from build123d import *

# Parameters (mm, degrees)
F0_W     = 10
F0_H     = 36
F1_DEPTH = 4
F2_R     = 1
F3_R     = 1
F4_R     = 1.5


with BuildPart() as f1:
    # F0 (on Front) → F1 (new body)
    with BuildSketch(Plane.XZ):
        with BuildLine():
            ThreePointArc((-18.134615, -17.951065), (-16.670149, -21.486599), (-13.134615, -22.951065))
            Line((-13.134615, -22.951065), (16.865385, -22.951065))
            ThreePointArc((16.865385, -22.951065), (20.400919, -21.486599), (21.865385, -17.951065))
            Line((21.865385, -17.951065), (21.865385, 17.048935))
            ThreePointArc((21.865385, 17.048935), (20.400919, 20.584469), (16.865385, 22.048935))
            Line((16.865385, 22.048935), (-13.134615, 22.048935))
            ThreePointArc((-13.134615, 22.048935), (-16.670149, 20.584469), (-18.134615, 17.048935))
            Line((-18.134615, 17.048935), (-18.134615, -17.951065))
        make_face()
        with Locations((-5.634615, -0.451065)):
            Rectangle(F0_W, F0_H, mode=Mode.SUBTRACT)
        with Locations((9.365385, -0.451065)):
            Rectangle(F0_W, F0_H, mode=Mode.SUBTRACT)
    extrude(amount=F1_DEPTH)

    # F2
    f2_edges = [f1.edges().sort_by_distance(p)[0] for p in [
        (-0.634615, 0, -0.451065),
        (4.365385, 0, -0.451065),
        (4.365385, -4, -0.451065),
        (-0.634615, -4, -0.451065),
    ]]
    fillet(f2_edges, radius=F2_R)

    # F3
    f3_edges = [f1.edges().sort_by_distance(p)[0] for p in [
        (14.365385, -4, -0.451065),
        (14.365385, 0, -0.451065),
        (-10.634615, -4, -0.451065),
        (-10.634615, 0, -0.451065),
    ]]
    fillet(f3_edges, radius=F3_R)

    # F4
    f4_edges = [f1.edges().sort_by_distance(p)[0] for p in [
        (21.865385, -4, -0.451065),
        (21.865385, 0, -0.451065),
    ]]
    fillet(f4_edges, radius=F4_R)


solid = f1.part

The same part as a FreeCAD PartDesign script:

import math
import FreeCAD as App
import Part
import Sketcher
Q = App.Units.Quantity


def edges_at(feature, points):
    """Names of the edges that pass closest to the given points."""
    edges = feature.Shape.Edges
    near = lambda p: min(range(len(edges)), key=lambda i: edges[i].distToShape(Part.Vertex(*p))[0])
    return sorted({f"Edge{near(p) + 1}" for p in points})


def add_polygon(sketch, points):
    """Adds a closed chain of lines whose ends are joined by coincident constraints."""
    first, n = sketch.GeometryCount, len(points)
    for a, b in zip(points, points[1:] + points[:1]):
        sketch.addGeometry(Part.LineSegment(App.Vector(*a, 0), App.Vector(*b, 0)), False)
    for i in range(n):
        sketch.addConstraint(Sketcher.Constraint("Coincident", first + i, 2, first + (i + 1) % n, 1))

doc = App.newDocument("Part")
params = doc.addObject("Spreadsheet::Sheet", "Params")
for row, (alias, value) in enumerate([
    ("sketch1_radius", "5 mm"),
    ("sketch1_width", "30 mm"),
    ("sketch1_width2", "10 mm"),
    ("sketch1_height", "35 mm"),
    ("sketch1_height2", "36 mm"),
    ("pad1_length", "4 mm"),
    ("fillet_radius", "1 mm"),
    ("fillet2_radius", "1 mm"),
    ("fillet3_radius", "1.5 mm"),
], start=1):
    params.set(f"A{row}", alias)
    params.set(f"B{row}", "=" + value)
    params.setAlias(f"B{row}", alias)

body = doc.addObject("PartDesign::Body", "Body")

sketch1 = doc.addObject("Sketcher::SketchObject", "Sketch")
body.addObject(sketch1)
sketch1.AttachmentSupport = (doc.XZ_Plane, [""])
sketch1.MapMode = "FlatFace"
sketch1.addGeometry(Part.ArcOfCircle(Part.Circle(App.Vector(-13.134615, -17.951065, 0), App.Vector(0, 0, 1), 5), math.radians(179.999996), math.radians(270.000004)), False)
sketch1.addGeometry(Part.LineSegment(App.Vector(-13.134615, -22.951065, 0), App.Vector(16.865385, -22.951065, 0)), False)
sketch1.addGeometry(Part.ArcOfCircle(Part.Circle(App.Vector(16.865385, -17.951065, 0), App.Vector(0, 0, 1), 5), math.radians(-90.000004), math.radians(0.000004)), False)
sketch1.addGeometry(Part.LineSegment(App.Vector(21.865385, -17.951065, 0), App.Vector(21.865385, 17.048935, 0)), False)
sketch1.addGeometry(Part.ArcOfCircle(Part.Circle(App.Vector(16.865385, 17.048935, 0), App.Vector(0, 0, 1), 5), math.radians(-0.000004), math.radians(90.000004)), False)
sketch1.addGeometry(Part.LineSegment(App.Vector(16.865385, 22.048935, 0), App.Vector(-13.134615, 22.048935, 0)), False)
sketch1.addGeometry(Part.ArcOfCircle(Part.Circle(App.Vector(-13.134615, 17.048935, 0), App.Vector(0, 0, 1), 5), math.radians(89.999996), math.radians(180.000004)), False)
sketch1.addGeometry(Part.LineSegment(App.Vector(-18.134615, 17.048935, 0), App.Vector(-18.134615, -17.951065, 0)), False)
add_polygon(sketch1, [(-0.634615, -18.451065), (-10.634615, -18.451065), (-10.634615, 17.548935), (-0.634615, 17.548935)])
add_polygon(sketch1, [(14.365385, -18.451065), (4.365385, -18.451065), (4.365385, 17.548935), (14.365385, 17.548935)])
sketch1.addConstraint([
    Sketcher.Constraint("Tangent", 0, 2, 1, 1),
    Sketcher.Constraint("Tangent", 1, 2, 2, 1),
    Sketcher.Constraint("Tangent", 2, 2, 3, 1),
    Sketcher.Constraint("Tangent", 3, 2, 4, 1),
    Sketcher.Constraint("Tangent", 4, 2, 5, 1),
    Sketcher.Constraint("Tangent", 5, 2, 6, 1),
    Sketcher.Constraint("Tangent", 6, 2, 7, 1),
    Sketcher.Constraint("Tangent", 7, 2, 0, 1),
    Sketcher.Constraint("Horizontal", 1),
    Sketcher.Constraint("Vertical", 3),
    Sketcher.Constraint("Horizontal", 5),
    Sketcher.Constraint("Vertical", 7),
    Sketcher.Constraint("Horizontal", 8),
    Sketcher.Constraint("Vertical", 9),
    Sketcher.Constraint("Horizontal", 10),
    Sketcher.Constraint("Vertical", 11),
    Sketcher.Constraint("Horizontal", 12),
    Sketcher.Constraint("Vertical", 13),
    Sketcher.Constraint("Horizontal", 14),
    Sketcher.Constraint("Vertical", 15),
    Sketcher.Constraint("Equal", 0, 2),
    Sketcher.Constraint("Equal", 2, 4),
    Sketcher.Constraint("Equal", 4, 6),
    Sketcher.Constraint("Horizontal", 11, 2, 12, 2),
    Sketcher.Constraint("Horizontal", 10, 2, 13, 2),
    Sketcher.Constraint("Equal", 10, 12),
    Sketcher.Constraint("Radius", 0, Q("5 mm")),
    Sketcher.Constraint("DistanceX", 1, 1, 1, 2, Q("30 mm")),
    Sketcher.Constraint("DistanceX", 8, 2, 8, 1, Q("10 mm")),
    Sketcher.Constraint("DistanceY", 3, 1, 3, 2, Q("35 mm")),
    Sketcher.Constraint("DistanceY", 9, 1, 9, 2, Q("36 mm")),
    Sketcher.Constraint("DistanceX", 11, 2, 12, 2, Q("5 mm")),
    Sketcher.Constraint("DistanceX", 0, 3, 8, 2, Q("2.5 mm")),
    Sketcher.Constraint("DistanceY", 8, 2, 0, 3, Q("0.5 mm")),
    Sketcher.Constraint("DistanceX", 0, 3, -1, 1, Q("13.134615 mm")),
    Sketcher.Constraint("DistanceY", 0, 3, -1, 1, Q("17.951065 mm")),
])
sketch1.setExpression("Constraints[34]", "Params.sketch1_radius")
sketch1.setExpression("Constraints[35]", "Params.sketch1_width")
sketch1.setExpression("Constraints[36]", "Params.sketch1_width2")
sketch1.setExpression("Constraints[37]", "Params.sketch1_height")
sketch1.setExpression("Constraints[38]", "Params.sketch1_height2")
pad1 = doc.addObject("PartDesign::Pad", "Pad")
body.addObject(pad1)
pad1.Profile = sketch1
pad1.setExpression("Length", "Params.pad1_length")
doc.recompute()

fillet = doc.addObject("PartDesign::Fillet", "Fillet")
body.addObject(fillet)
fillet.Base = (pad1, edges_at(pad1, [
    (-0.635, 0, -0.451),
    (4.365, 0, -0.451),
    (4.365, -4, -0.451),
    (-0.635, -4, -0.451),
]))
fillet.setExpression("Radius", "Params.fillet_radius")
doc.recompute()

fillet2 = doc.addObject("PartDesign::Fillet", "Fillet001")
body.addObject(fillet2)
fillet2.Base = (fillet, edges_at(fillet, [
    (14.365, -4, -0.451),
    (14.365, 0, -0.451),
    (-10.635, -4, -0.451),
    (-10.635, 0, -0.451),
]))
fillet2.setExpression("Radius", "Params.fillet2_radius")
doc.recompute()

fillet3 = doc.addObject("PartDesign::Fillet", "Fillet002")
body.addObject(fillet3)
fillet3.Base = (fillet2, edges_at(fillet2, [(21.865, -4, -0.451), (21.865, 0, -0.451)]))
fillet3.setExpression("Radius", "Params.fillet3_radius")

doc.recompute()
